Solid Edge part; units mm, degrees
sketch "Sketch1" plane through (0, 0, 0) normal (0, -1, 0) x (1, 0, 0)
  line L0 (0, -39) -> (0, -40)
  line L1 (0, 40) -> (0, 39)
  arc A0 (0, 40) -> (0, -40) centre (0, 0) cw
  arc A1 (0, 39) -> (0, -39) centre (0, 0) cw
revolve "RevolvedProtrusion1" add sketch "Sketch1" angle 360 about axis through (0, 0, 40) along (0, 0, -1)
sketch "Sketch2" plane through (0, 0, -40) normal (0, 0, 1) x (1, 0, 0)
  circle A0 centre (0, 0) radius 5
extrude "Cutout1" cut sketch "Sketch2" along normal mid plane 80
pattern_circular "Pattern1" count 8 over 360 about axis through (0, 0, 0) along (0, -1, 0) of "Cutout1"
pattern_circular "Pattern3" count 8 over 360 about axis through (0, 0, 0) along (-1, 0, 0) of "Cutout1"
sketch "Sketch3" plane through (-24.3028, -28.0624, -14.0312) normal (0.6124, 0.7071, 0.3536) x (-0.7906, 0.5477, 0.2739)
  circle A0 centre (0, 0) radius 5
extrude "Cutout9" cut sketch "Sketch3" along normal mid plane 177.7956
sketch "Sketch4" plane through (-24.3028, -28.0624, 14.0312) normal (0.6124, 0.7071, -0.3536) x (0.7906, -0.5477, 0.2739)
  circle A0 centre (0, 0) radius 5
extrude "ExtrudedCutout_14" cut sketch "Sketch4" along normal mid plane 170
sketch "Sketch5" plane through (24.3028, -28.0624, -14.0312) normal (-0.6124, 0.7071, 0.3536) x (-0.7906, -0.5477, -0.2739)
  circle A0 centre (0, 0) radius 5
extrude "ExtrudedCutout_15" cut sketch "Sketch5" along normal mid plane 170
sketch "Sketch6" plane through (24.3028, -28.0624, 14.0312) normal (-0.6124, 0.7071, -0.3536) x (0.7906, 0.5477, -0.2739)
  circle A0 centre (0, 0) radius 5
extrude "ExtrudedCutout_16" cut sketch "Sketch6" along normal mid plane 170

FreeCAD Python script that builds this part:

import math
import FreeCAD as App
import Part
import Sketcher

V = App.Vector

doc = App.newDocument("Part")
params = doc.addObject("Spreadsheet::Sheet", "Params")
for row, (alias, value) in enumerate([
    ("sketch1_radius", "39 mm"),
    ("sketch1_radius2", "40 mm"),
    ("revolution_angle", "360 deg"),
    ("sketch2_diameter", "10 mm"),
    ("pocket1_length", "80 mm"),
    ("sketch3_diameter", "10 mm"),
    ("pocket2_length", "177.7956 mm"),
    ("sketch4_diameter", "10 mm"),
    ("pocket3_length", "170 mm"),
    ("sketch5_diameter", "10 mm"),
    ("pocket4_length", "170 mm"),
    ("sketch6_diameter", "10 mm"),
    ("pocket5_length", "170 mm"),
], start=1):
    params.set(f"A{row}", alias)
    params.set(f"B{row}", "=" + value)
    params.setAlias(f"B{row}", alias)

body = doc.addObject("PartDesign::Body", "Body")

sketch1 = body.newObject("Sketcher::SketchObject", "Sketch")
sketch1.AttachmentSupport = (doc.getObject("XZ_Plane"), [""])
sketch1.MapMode = "FlatFace"
sketch1.addGeometry([
    Part.ArcOfCircle(Part.Circle(V(0, 0, 0), V(0, 0, 1), 39), math.radians(-90), math.radians(90)),
    Part.LineSegment(V(0, -39, 0), V(0, -40, 0)),
    Part.ArcOfCircle(Part.Circle(V(0, 0, 0), V(0, 0, 1), 40), math.radians(-90), math.radians(90)),
    Part.LineSegment(V(0, 40, 0), V(0, 39, 0)),
], False)
sketch1.addConstraint([
    Sketcher.Constraint("Coincident", 0, 1, 1, 1),
    Sketcher.Constraint("Coincident", 1, 2, 2, 1),
    Sketcher.Constraint("Coincident", 2, 2, 3, 1),
    Sketcher.Constraint("Coincident", 3, 2, 0, 2),
    Sketcher.Constraint("Vertical", 1),
    Sketcher.Constraint("Vertical", 3),
    Sketcher.Constraint("Coincident", 0, 3, -1, 1),
    Sketcher.Constraint("Coincident", 2, 3, -1, 1),
    Sketcher.Constraint("PointOnObject", 0, 1, -2),
    Sketcher.Constraint("PointOnObject", 2, 2, -2),
    Sketcher.Constraint("Radius", 0, 39.0),
    Sketcher.Constraint("Radius", 2, 40.0),
])
sketch1.setExpression("Constraints[10]", "Params.sketch1_radius")
sketch1.setExpression("Constraints[11]", "Params.sketch1_radius2")
revolution = body.newObject("PartDesign::Revolution", "Revolution")
revolution.Profile = sketch1
revolution.ReferenceAxis = (sketch1, ["V_Axis"])
revolution.setExpression("Angle", "Params.revolution_angle")

sketch2 = body.newObject("Sketcher::SketchObject", "Sketch001")
sketch2.AttachmentSupport = (doc.getObject("XY_Plane"), [""])
sketch2.MapMode = "FlatFace"
sketch2.AttachmentOffset = App.Placement(V(0, 0, -40), App.Rotation())
sketch2.addGeometry(Part.Circle(V(0, 0, 0), V(0, 0, 1), 5), False)
sketch2.addConstraint([
    Sketcher.Constraint("Coincident", 0, 3, -1, 1),
    Sketcher.Constraint("Diameter", 0, 10.0),
])
sketch2.setExpression("Constraints[1]", "Params.sketch2_diameter")
pocket1 = body.newObject("PartDesign::Pocket", "Pocket")
pocket1.Profile = sketch2
pocket1.setExpression("Length", "Params.pocket1_length")
pocket1.Midplane = True
doc.recompute()

polarpattern = body.newObject("PartDesign::PolarPattern", "PolarPattern")
polarpattern.Originals = [pocket1]
polarpattern.Axis = (doc.getObject("Y_Axis"), [""])
polarpattern.Angle = 360
polarpattern.Occurrences = 8
body.Tip = polarpattern
doc.recompute()

polarpattern2 = body.newObject("PartDesign::PolarPattern", "PolarPattern001")
polarpattern2.Originals = [pocket1]
polarpattern2.Axis = (doc.getObject("X_Axis"), [""])
polarpattern2.Angle = 360
polarpattern2.Occurrences = 8
body.Tip = polarpattern2

sketch3 = body.newObject("Sketcher::SketchObject", "Sketch002")
sketch3.Placement = App.Placement(V(-24.3028, -28.0624, -14.0312), App.Rotation(V(-0.790561613, 0.547711564, 0.273905783), V(0.00000797, -0.447269712, 0.894399131), V(0.612382508, 0.707079803, 0.3535899), "ZXY"))
sketch3.addGeometry(Part.Circle(V(0, 0, 0), V(0, 0, 1), 5), False)
sketch3.addConstraint([
    Sketcher.Constraint("Coincident", 0, 3, -1, 1),
    Sketcher.Constraint("Diameter", 0, 10.0),
])
sketch3.setExpression("Constraints[1]", "Params.sketch3_diameter")
pocket2 = body.newObject("PartDesign::Pocket", "Pocket001")
pocket2.Profile = sketch3
pocket2.setExpression("Length", "Params.pocket2_length")
pocket2.Midplane = True

sketch4 = body.newObject("Sketcher::SketchObject", "Sketch003")
sketch4.Placement = App.Placement(V(-24.3028, -28.0624, 14.0312), App.Rotation(V(0.790561613, -0.547711564, 0.273905783), V(0.00000797, -0.447269712, -0.894399131), V(0.612382508, 0.707079803, -0.3535899), "ZXY"))
sketch4.addGeometry(Part.Circle(V(0, 0, 0), V(0, 0, 1), 5), False)
sketch4.addConstraint([
    Sketcher.Constraint("Coincident", 0, 3, -1, 1),
    Sketcher.Constraint("Diameter", 0, 10.0),
])
sketch4.setExpression("Constraints[1]", "Params.sketch4_diameter")
pocket3 = body.newObject("PartDesign::Pocket", "Pocket002")
pocket3.Profile = sketch4
pocket3.setExpression("Length", "Params.pocket3_length")
pocket3.Midplane = True

sketch5 = body.newObject("Sketcher::SketchObject", "Sketch004")
sketch5.Placement = App.Placement(V(24.3028, -28.0624, -14.0312), App.Rotation(V(-0.790561613, -0.547711564, -0.273905783), V(-0.00000797, -0.447269712, 0.894399131), V(-0.612382508, 0.707079803, 0.3535899), "ZXY"))
sketch5.addGeometry(Part.Circle(V(0, 0, 0), V(0, 0, 1), 5), False)
sketch5.addConstraint([
    Sketcher.Constraint("Coincident", 0, 3, -1, 1),
    Sketcher.Constraint("Diameter", 0, 10.0),
])
sketch5.setExpression("Constraints[1]", "Params.sketch5_diameter")
pocket4 = body.newObject("PartDesign::Pocket", "Pocket003")
pocket4.Profile = sketch5
pocket4.setExpression("Length", "Params.pocket4_length")
pocket4.Midplane = True

sketch6 = body.newObject("Sketcher::SketchObject", "Sketch005")
sketch6.Placement = App.Placement(V(24.3028, -28.0624, 14.0312), App.Rotation(V(0.790561613, 0.547711564, -0.273905783), V(-0.00000797, -0.447269712, -0.894399131), V(-0.612382508, 0.707079803, -0.3535899), "ZXY"))
sketch6.addGeometry(Part.Circle(V(0, 0, 0), V(0, 0, 1), 5), False)
sketch6.addConstraint([
    Sketcher.Constraint("Coincident", 0, 3, -1, 1),
    Sketcher.Constraint("Diameter", 0, 10.0),
])
sketch6.setExpression("Constraints[1]", "Params.sketch6_diameter")
pocket5 = body.newObject("PartDesign::Pocket", "Pocket004")
pocket5.Profile = sketch6
pocket5.setExpression("Length", "Params.pocket5_length")
pocket5.Midplane = True

doc.recompute()
